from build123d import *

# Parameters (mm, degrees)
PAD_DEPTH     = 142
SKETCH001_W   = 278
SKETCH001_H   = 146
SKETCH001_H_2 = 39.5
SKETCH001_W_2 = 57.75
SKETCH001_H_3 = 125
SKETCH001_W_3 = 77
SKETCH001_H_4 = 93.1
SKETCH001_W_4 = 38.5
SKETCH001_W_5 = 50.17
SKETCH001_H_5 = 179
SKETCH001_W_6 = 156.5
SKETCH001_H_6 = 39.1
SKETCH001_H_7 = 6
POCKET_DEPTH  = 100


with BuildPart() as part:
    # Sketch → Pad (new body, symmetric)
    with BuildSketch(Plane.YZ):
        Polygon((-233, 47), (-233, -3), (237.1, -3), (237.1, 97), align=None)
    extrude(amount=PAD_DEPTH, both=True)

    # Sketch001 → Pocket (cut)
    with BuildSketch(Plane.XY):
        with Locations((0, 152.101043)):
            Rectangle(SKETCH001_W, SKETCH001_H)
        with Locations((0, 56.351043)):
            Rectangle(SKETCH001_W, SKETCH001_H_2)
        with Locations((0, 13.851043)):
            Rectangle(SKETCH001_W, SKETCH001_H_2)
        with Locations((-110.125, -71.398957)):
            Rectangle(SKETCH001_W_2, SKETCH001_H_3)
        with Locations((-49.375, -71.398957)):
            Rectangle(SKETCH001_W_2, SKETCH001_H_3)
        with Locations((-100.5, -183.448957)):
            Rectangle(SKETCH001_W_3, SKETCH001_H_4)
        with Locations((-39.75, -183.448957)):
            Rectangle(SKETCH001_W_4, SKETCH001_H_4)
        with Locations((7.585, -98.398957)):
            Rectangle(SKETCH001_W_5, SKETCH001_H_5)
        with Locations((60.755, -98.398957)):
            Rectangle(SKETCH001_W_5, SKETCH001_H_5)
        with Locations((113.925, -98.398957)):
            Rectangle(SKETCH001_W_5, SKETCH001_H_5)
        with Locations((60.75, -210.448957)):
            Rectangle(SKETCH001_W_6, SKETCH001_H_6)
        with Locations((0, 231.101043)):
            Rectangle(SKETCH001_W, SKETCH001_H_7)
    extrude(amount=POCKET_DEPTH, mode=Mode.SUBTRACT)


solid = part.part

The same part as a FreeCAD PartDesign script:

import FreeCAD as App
import Part
import Sketcher
Q = App.Units.Quantity

doc = App.newDocument("Part")
body = doc.addObject("PartDesign::Body", "Body")

# Sketch on YZ plane
sketch1 = body.newObject("Sketcher::SketchObject", "Sketch")
sketch1.AttachmentSupport = (doc.getObject("YZ_Plane"), [""])
sketch1.MapMode = "FlatFace"
sketch1.addGeometry([
    Part.LineSegment(App.Vector(-233, 47, 0), App.Vector(-233, -3, 0)),
    Part.LineSegment(App.Vector(-233, -3, 0), App.Vector(237.1, -3, 0)),
    Part.LineSegment(App.Vector(237.1, -3, 0), App.Vector(237.1, 97, 0)),
    Part.LineSegment(App.Vector(237.1, 97, 0), App.Vector(-233, 47, 0)),
], False)
sketch1.addConstraint([
    Sketcher.Constraint("Coincident", 0, 2, 1, 1),
    Sketcher.Constraint("Coincident", 1, 2, 2, 1),
    Sketcher.Constraint("Coincident", 2, 2, 3, 1),
    Sketcher.Constraint("Coincident", 3, 2, 0, 1),
    Sketcher.Constraint("Vertical", 0),
    Sketcher.Constraint("Horizontal", 1),
    Sketcher.Constraint("Vertical", 2),
    Sketcher.Constraint("DistanceY", 0, 2, 0, 1, Q("50 mm")),
    Sketcher.Constraint("DistanceY", 2, 1, 2, 2, Q("100 mm")),
    Sketcher.Constraint("DistanceX", 1, 1, 1, 2, Q("470.1 mm")),
    Sketcher.Constraint("DistanceX", 0, 2, -1, 1, Q("233 mm")),
    Sketcher.Constraint("DistanceY", 0, 2, -1, 1, Q("3 mm")),
])
pad1 = body.newObject("PartDesign::Pad", "Pad")
pad1.Profile = sketch1
pad1.Length = 284
pad1.Midplane = True

# Sketch on XY plane
sketch2 = body.newObject("Sketcher::SketchObject", "Sketch001")
sketch2.AttachmentSupport = (doc.getObject("XY_Plane"), [""])
sketch2.MapMode = "FlatFace"
sketch2.addGeometry([
    Part.LineSegment(App.Vector(-139, 225.101043, 0), App.Vector(-139, 79.101043, 0)),  # 0
    Part.LineSegment(App.Vector(-139, 79.101043, 0), App.Vector(139, 79.101043, 0)),  # 1
    Part.LineSegment(App.Vector(139, 79.101043, 0), App.Vector(139, 225.101043, 0)),  # 2
    Part.LineSegment(App.Vector(139, 225.101043, 0), App.Vector(-139, 225.101043, 0)),  # 3
    Part.LineSegment(App.Vector(-139, 76.101043, 0), App.Vector(-139, 36.601043, 0)),  # 4
    Part.LineSegment(App.Vector(-139, 36.601043, 0), App.Vector(139, 36.601043, 0)),  # 5
    Part.LineSegment(App.Vector(139, 36.601043, 0), App.Vector(139, 76.101043, 0)),  # 6
    Part.LineSegment(App.Vector(139, 76.101043, 0), App.Vector(-139, 76.101043, 0)),  # 7
    Part.LineSegment(App.Vector(-139, 33.601043, 0), App.Vector(-139, -5.898957, 0)),  # 8
    Part.LineSegment(App.Vector(-139, -5.898957, 0), App.Vector(139, -5.898957, 0)),  # 9
    Part.LineSegment(App.Vector(139, -5.898957, 0), App.Vector(139, 33.601043, 0)),  # 10
    Part.LineSegment(App.Vector(139, 33.601043, 0), App.Vector(-139, 33.601043, 0)),  # 11
    Part.LineSegment(App.Vector(-139, -8.898957, 0), App.Vector(-139, -133.898957, 0)),  # 12
    Part.LineSegment(App.Vector(-139, -133.898957, 0), App.Vector(-81.25, -133.898957, 0)),  # 13
    Part.LineSegment(App.Vector(-81.25, -133.898957, 0), App.Vector(-81.25, -8.898957, 0)),  # 14
    Part.LineSegment(App.Vector(-81.25, -8.898957, 0), App.Vector(-139, -8.898957, 0)),  # 15
    Part.LineSegment(App.Vector(-78.25, -8.898957, 0), App.Vector(-78.25, -133.898957, 0)),  # 16
    Part.LineSegment(App.Vector(-78.25, -133.898957, 0), App.Vector(-20.5, -133.898957, 0)),  # 17
    Part.LineSegment(App.Vector(-20.5, -133.898957, 0), App.Vector(-20.5, -8.898957, 0)),  # 18
    Part.LineSegment(App.Vector(-20.5, -8.898957, 0), App.Vector(-78.25, -8.898957, 0)),  # 19
    Part.LineSegment(App.Vector(-139, -136.898957, 0), App.Vector(-139, -229.998957, 0)),  # 20
    Part.LineSegment(App.Vector(-139, -229.998957, 0), App.Vector(-62, -229.998957, 0)),  # 21
    Part.LineSegment(App.Vector(-62, -229.998957, 0), App.Vector(-62, -136.898957, 0)),  # 22
    Part.LineSegment(App.Vector(-62, -136.898957, 0), App.Vector(-139, -136.898957, 0)),  # 23
    Part.LineSegment(App.Vector(-59, -136.898957, 0), App.Vector(-59, -229.998957, 0)),  # 24
    Part.LineSegment(App.Vector(-59, -229.998957, 0), App.Vector(-20.5, -229.998957, 0)),  # 25
    Part.LineSegment(App.Vector(-20.5, -229.998957, 0), App.Vector(-20.5, -136.898957, 0)),  # 26
    Part.LineSegment(App.Vector(-20.5, -136.898957, 0), App.Vector(-59, -136.898957, 0)),  # 27
    Part.LineSegment(App.Vector(-17.5, -8.898957, 0), App.Vector(-17.5, -187.898957, 0)),  # 28
    Part.LineSegment(App.Vector(-17.5, -187.898957, 0), App.Vector(32.67, -187.898957, 0)),  # 29
    Part.LineSegment(App.Vector(32.67, -187.898957, 0), App.Vector(32.67, -8.898957, 0)),  # 30
    Part.LineSegment(App.Vector(32.67, -8.898957, 0), App.Vector(-17.5, -8.898957, 0)),  # 31
    Part.LineSegment(App.Vector(35.67, -8.898957, 0), App.Vector(35.67, -187.898957, 0)),  # 32
    Part.LineSegment(App.Vector(35.67, -187.898957, 0), App.Vector(85.84, -187.898957, 0)),  # 33
    Part.LineSegment(App.Vector(85.84, -187.898957, 0), App.Vector(85.84, -8.898957, 0)),  # 34
    Part.LineSegment(App.Vector(85.84, -8.898957, 0), App.Vector(35.67, -8.898957, 0)),  # 35
    Part.LineSegment(App.Vector(88.84, -8.898957, 0), App.Vector(88.84, -187.898957, 0)),  # 36
    Part.LineSegment(App.Vector(88.84, -187.898957, 0), App.Vector(139.01, -187.898957, 0)),  # 37
    Part.LineSegment(App.Vector(139.01, -187.898957, 0), App.Vector(139.01, -8.898957, 0)),  # 38
    Part.LineSegment(App.Vector(139.01, -8.898957, 0), App.Vector(88.84, -8.898957, 0)),  # 39
    Part.LineSegment(App.Vector(-17.5, -190.898957, 0), App.Vector(-17.5, -229.998957, 0)),  # 40
    Part.LineSegment(App.Vector(-17.5, -229.998957, 0), App.Vector(139, -229.998957, 0)),  # 41
    Part.LineSegment(App.Vector(139, -229.998957, 0), App.Vector(139, -190.898957, 0)),  # 42
    Part.LineSegment(App.Vector(139, -190.898957, 0), App.Vector(-17.5, -190.898957, 0)),  # 43
    Part.LineSegment(App.Vector(-139, 234.101043, 0), App.Vector(-139, 228.101043, 0)),  # 44
    Part.LineSegment(App.Vector(-139, 228.101043, 0), App.Vector(139, 228.101043, 0)),  # 45
    Part.LineSegment(App.Vector(139, 228.101043, 0), App.Vector(139, 234.101043, 0)),  # 46
    Part.LineSegment(App.Vector(139, 234.101043, 0), App.Vector(-139, 234.101043, 0)),  # 47
], False)
sketch2.addConstraint([
    Sketcher.Constraint("Coincident", 0, 2, 1, 1),
    Sketcher.Constraint("Coincident", 1, 2, 2, 1),
    Sketcher.Constraint("Coincident", 2, 2, 3, 1),
    Sketcher.Constraint("Coincident", 3, 2, 0, 1),
    Sketcher.Constraint("Coincident", 4, 2, 5, 1),
    Sketcher.Constraint("Coincident", 5, 2, 6, 1),
    Sketcher.Constraint("Coincident", 6, 2, 7, 1),
    Sketcher.Constraint("Coincident", 7, 2, 4, 1),
    Sketcher.Constraint("Coincident", 8, 2, 9, 1),
    Sketcher.Constraint("Coincident", 9, 2, 10, 1),
    Sketcher.Constraint("Coincident", 10, 2, 11, 1),
    Sketcher.Constraint("Coincident", 11, 2, 8, 1),
    Sketcher.Constraint("Coincident", 12, 2, 13, 1),
    Sketcher.Constraint("Coincident", 13, 2, 14, 1),
    Sketcher.Constraint("Coincident", 14, 2, 15, 1),
    Sketcher.Constraint("Coincident", 15, 2, 12, 1),
    Sketcher.Constraint("Coincident", 16, 2, 17, 1),
    Sketcher.Constraint("Coincident", 17, 2, 18, 1),
    Sketcher.Constraint("Coincident", 18, 2, 19, 1),
    Sketcher.Constraint("Coincident", 19, 2, 16, 1),
    Sketcher.Constraint("Coincident", 20, 2, 21, 1),
    Sketcher.Constraint("Coincident", 21, 2, 22, 1),
    Sketcher.Constraint("Coincident", 22, 2, 23, 1),
    Sketcher.Constraint("Coincident", 23, 2, 20, 1),
    Sketcher.Constraint("Coincident", 24, 2, 25, 1),
    Sketcher.Constraint("Coincident", 25, 2, 26, 1),
    Sketcher.Constraint("Coincident", 26, 2, 27, 1),
    Sketcher.Constraint("Coincident", 27, 2, 24, 1),
    Sketcher.Constraint("Coincident", 28, 2, 29, 1),
    Sketcher.Constraint("Coincident", 29, 2, 30, 1),
    Sketcher.Constraint("Coincident", 30, 2, 31, 1),
    Sketcher.Constraint("Coincident", 31, 2, 28, 1),
    Sketcher.Constraint("Coincident", 32, 2, 33, 1),
    Sketcher.Constraint("Coincident", 33, 2, 34, 1),
    Sketcher.Constraint("Coincident", 34, 2, 35, 1),
    Sketcher.Constraint("Coincident", 35, 2, 32, 1),
    Sketcher.Constraint("Coincident", 36, 2, 37, 1),
    Sketcher.Constraint("Coincident", 37, 2, 38, 1),
    Sketcher.Constraint("Coincident", 38, 2, 39, 1),
    Sketcher.Constraint("Coincident", 39, 2, 36, 1),
    Sketcher.Constraint("Coincident", 40, 2, 41, 1),
    Sketcher.Constraint("Coincident", 41, 2, 42, 1),
    Sketcher.Constraint("Coincident", 42, 2, 43, 1),
    Sketcher.Constraint("Coincident", 43, 2, 40, 1),
    Sketcher.Constraint("Coincident", 44, 2, 45, 1),
    Sketcher.Constraint("Coincident", 45, 2, 46, 1),
    Sketcher.Constraint("Coincident", 46, 2, 47, 1),
    Sketcher.Constraint("Coincident", 47, 2, 44, 1),
    Sketcher.Constraint("Vertical", 0),
    Sketcher.Constraint("Horizontal", 1),
    Sketcher.Constraint("Vertical", 2),
    Sketcher.Constraint("Horizontal", 3),
    Sketcher.Constraint("Vertical", 4),
    Sketcher.Constraint("Horizontal", 5),
    Sketcher.Constraint("Vertical", 6),
    Sketcher.Constraint("Horizontal", 7),
    Sketcher.Constraint("Vertical", 8),
    Sketcher.Constraint("Horizontal", 9),
    Sketcher.Constraint("Vertical", 10),
    Sketcher.Constraint("Horizontal", 11),
    Sketcher.Constraint("Vertical", 12),
    Sketcher.Constraint("Horizontal", 13),
    Sketcher.Constraint("Vertical", 14),
    Sketcher.Constraint("Horizontal", 15),
    Sketcher.Constraint("Vertical", 16),
    Sketcher.Constraint("Horizontal", 17),
    Sketcher.Constraint("Vertical", 18),
    Sketcher.Constraint("Horizontal", 19),
    Sketcher.Constraint("Vertical", 20),
    Sketcher.Constraint("Horizontal", 21),
    Sketcher.Constraint("Vertical", 22),
    Sketcher.Constraint("Horizontal", 23),
    Sketcher.Constraint("Vertical", 24),
    Sketcher.Constraint("Horizontal", 25),
    Sketcher.Constraint("Vertical", 26),
    Sketcher.Constraint("Horizontal", 27),
    Sketcher.Constraint("Vertical", 28),
    Sketcher.Constraint("Horizontal", 29),
    Sketcher.Constraint("Vertical", 30),
    Sketcher.Constraint("Horizontal", 31),
    Sketcher.Constraint("Vertical", 32),
    Sketcher.Constraint("Horizontal", 33),
    Sketcher.Constraint("Vertical", 34),
    Sketcher.Constraint("Horizontal", 35),
    Sketcher.Constraint("Vertical", 36),
    Sketcher.Constraint("Horizontal", 37),
    Sketcher.Constraint("Vertical", 38),
    Sketcher.Constraint("Horizontal", 39),
    Sketcher.Constraint("Vertical", 40),
    Sketcher.Constraint("Horizontal", 41),
    Sketcher.Constraint("Vertical", 42),
    Sketcher.Constraint("Horizontal", 43),
    Sketcher.Constraint("Vertical", 44),
    Sketcher.Constraint("Horizontal", 45),
    Sketcher.Constraint("Vertical", 46),
    Sketcher.Constraint("Horizontal", 47),
    Sketcher.Constraint("Symmetric", 20, 2, 41, 2, -2),
    Sketcher.Constraint("Horizontal", 13, 2, 16, 2),
    Sketcher.Constraint("Horizontal", 15, 2, 18, 2),
    Sketcher.Constraint("Horizontal", 21, 2, 24, 2),
    Sketcher.Constraint("Horizontal", 23, 2, 26, 2),
    Sketcher.Constraint("Horizontal", 19, 2, 30, 2),
    Sketcher.Constraint("Horizontal", 29, 2, 32, 2),
    Sketcher.Constraint("Horizontal", 31, 2, 34, 2),
    Sketcher.Constraint("Horizontal", 33, 2, 36, 2),
    Sketcher.Constraint("Horizontal", 35, 2, 38, 2),
    Sketcher.Constraint("Vertical", 3, 2, 4, 2),
    Sketcher.Constraint("Vertical", 2, 2, 5, 2),
    Sketcher.Constraint("Vertical", 7, 2, 8, 2),
    Sketcher.Constraint("Vertical", 6, 2, 9, 2),
    Sketcher.Constraint("Vertical", 11, 2, 12, 2),
    Sketcher.Constraint("Vertical", 15, 2, 20, 2),
    Sketcher.Constraint("Vertical", 18, 2, 25, 2),
    Sketcher.Constraint("Vertical", 31, 2, 40, 2),
    Sketcher.Constraint("Vertical", 10, 2, 41, 2),
    Sketcher.Constraint("Vertical", 23, 2, 44, 2),
    Sketcher.Constraint("Vertical", 42, 2, 45, 2),
    Sketcher.Constraint("Equal", 15, 17),
    Sketcher.Constraint("Equal", 31, 33),
    Sketcher.Constraint("Equal", 35, 37),
    Sketcher.Constraint("Equal", 6, 8),
    Sketcher.Constraint("DistanceX", 1, 1, 1, 2, Q("278 mm")),
    Sketcher.Constraint("DistanceX", 21, 1, 21, 2, Q("77 mm")),
    Sketcher.Constraint("DistanceY", 0, 2, 0, 1, Q("146 mm")),
    Sketcher.Constraint("DistanceY", 12, 2, 12, 1, Q("125 mm")),
    Sketcher.Constraint("DistanceY", 28, 2, 28, 1, Q("179 mm")),
    Sketcher.Constraint("DistanceY", 44, 2, 44, 1, Q("6 mm")),
    Sketcher.Constraint("DistanceX", 25, 1, 25, 2, Q("38.5 mm")),
    Sketcher.Constraint("DistanceX", 41, 1, 41, 2, Q("156.5 mm")),
    Sketcher.Constraint("DistanceY", 4, 2, 4, 1, Q("39.5 mm")),
    Sketcher.Constraint("DistanceY", 20, 2, 20, 1, Q("93.1 mm")),
    Sketcher.Constraint("DistanceY", 40, 2, 40, 1, Q("39.1 mm")),
    Sketcher.Constraint("DistanceX", 24, 2, -1, 1, Q("59 mm")),
    Sketcher.Constraint("DistanceY", 6, 2, 1, 2, Q("3 mm")),
    Sketcher.Constraint("DistanceY", 8, 2, 7, 2, Q("82 mm")),
    Sketcher.Constraint("DistanceY", 12, 2, 8, 2, Q("128 mm")),
    Sketcher.Constraint("DistanceX", 13, 2, 16, 2, Q("3 mm")),
    Sketcher.Constraint("DistanceY", 22, 2, 16, 2, Q("3 mm")),
    Sketcher.Constraint("DistanceX", 29, 2, 32, 2, Q("3 mm")),
    Sketcher.Constraint("DistanceX", 33, 2, 36, 2, Q("3 mm")),
    Sketcher.Constraint("DistanceY", 3, 2, 44, 2, Q("3 mm")),
    Sketcher.Constraint("DistanceX", 29, 1, 29, 2, Q("50.17 mm")),
    Sketcher.Constraint("DistanceY", -1, 1, 0, 2, Q("79.101043 mm")),
])
pocket1 = body.newObject("PartDesign::Pocket", "Pocket")
pocket1.Profile = sketch2
pocket1.Length = 100
pocket1.Reversed = True

doc.recompute()
